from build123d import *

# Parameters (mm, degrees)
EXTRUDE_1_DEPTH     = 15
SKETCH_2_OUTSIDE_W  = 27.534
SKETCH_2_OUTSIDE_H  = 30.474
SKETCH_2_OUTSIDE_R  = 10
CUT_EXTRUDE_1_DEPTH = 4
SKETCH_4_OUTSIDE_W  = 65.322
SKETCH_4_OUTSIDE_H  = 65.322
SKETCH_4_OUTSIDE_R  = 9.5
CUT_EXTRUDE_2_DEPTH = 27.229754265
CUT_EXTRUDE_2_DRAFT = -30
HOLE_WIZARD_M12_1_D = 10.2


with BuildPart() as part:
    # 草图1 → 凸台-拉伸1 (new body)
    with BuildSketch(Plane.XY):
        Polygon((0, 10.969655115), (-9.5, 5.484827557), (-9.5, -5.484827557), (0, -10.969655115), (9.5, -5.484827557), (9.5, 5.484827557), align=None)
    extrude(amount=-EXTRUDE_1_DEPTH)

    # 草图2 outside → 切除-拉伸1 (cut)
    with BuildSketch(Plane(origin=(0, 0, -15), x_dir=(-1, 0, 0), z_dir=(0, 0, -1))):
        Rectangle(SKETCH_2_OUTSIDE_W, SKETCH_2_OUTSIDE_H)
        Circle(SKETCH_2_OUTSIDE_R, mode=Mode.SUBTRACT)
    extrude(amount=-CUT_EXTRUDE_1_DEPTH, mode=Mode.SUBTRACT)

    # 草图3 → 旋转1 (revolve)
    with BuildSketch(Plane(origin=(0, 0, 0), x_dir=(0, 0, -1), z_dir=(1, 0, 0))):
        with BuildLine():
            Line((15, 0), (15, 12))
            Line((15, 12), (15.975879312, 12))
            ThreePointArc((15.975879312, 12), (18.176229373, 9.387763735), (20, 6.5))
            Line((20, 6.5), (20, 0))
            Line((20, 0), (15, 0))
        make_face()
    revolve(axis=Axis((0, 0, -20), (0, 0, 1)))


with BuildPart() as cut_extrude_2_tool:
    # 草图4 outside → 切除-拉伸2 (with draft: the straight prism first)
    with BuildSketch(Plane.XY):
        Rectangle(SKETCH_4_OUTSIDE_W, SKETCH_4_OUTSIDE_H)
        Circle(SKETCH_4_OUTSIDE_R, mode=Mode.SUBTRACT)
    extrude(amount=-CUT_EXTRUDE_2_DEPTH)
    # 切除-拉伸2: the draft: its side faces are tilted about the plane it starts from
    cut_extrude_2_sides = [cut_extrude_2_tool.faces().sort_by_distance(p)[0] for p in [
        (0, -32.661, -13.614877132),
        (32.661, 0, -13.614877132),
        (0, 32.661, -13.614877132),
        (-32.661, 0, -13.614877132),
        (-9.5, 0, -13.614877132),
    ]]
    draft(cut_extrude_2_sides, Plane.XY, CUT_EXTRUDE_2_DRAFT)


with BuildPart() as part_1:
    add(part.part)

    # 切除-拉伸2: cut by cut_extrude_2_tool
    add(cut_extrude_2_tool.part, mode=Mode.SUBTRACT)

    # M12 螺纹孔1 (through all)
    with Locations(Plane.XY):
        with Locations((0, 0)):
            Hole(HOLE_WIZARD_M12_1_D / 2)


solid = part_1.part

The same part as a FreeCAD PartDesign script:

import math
import FreeCAD as App
import Part
import Sketcher

V = App.Vector
Q = App.Units.Quantity


def faces_at(feature, points):
    """Names of the faces that lie closest to the given points."""
    faces = feature.Shape.Faces
    near = lambda p: min(range(len(faces)), key=lambda i: faces[i].distToShape(Part.Vertex(*p))[0])
    return sorted({f"Face{near(p) + 1}" for p in points})


def add_polygon(sketch, points):
    """Adds a closed chain of lines whose ends are joined by coincident constraints."""
    first, n = sketch.GeometryCount, len(points)
    for a, b in zip(points, points[1:] + points[:1]):
        sketch.addGeometry(Part.LineSegment(App.Vector(*a, 0), App.Vector(*b, 0)), False)
    for i in range(n):
        sketch.addConstraint(Sketcher.Constraint("Coincident", first + i, 2, first + (i + 1) % n, 1))

doc = App.newDocument("Part")
body = doc.addObject("PartDesign::Body", "Body")

# Sketch on XY plane
sketch1 = doc.addObject("Sketcher::SketchObject", "Sketch")
body.addObject(sketch1)
sketch1.AttachmentSupport = (doc.XY_Plane, [""])
sketch1.MapMode = "FlatFace"
add_polygon(sketch1, [(0, 10.969655), (-9.5, 5.484828), (-9.5, -5.484828), (0, -10.969655), (9.5, -5.484828), (9.5, 5.484828)])  # lines 0-5
sketch1.addConstraint(Sketcher.Constraint("Vertical", 1))
sketch1.addConstraint(Sketcher.Constraint("Vertical", 4))
sketch1.addConstraint(Sketcher.Constraint("Symmetric", 0, 2, 3, 2, -1, 1))
sketch1.addConstraint(Sketcher.Constraint("Symmetric", 2, 2, 5, 2, -1, 1))
sketch1.addConstraint(Sketcher.Constraint("PointOnObject", 2, 2, -2))
sketch1.addConstraint(Sketcher.Constraint("Parallel", 2, 5))
sketch1.addConstraint(Sketcher.Constraint("Horizontal", 1, 2, 3, 2))
sketch1.addConstraint(Sketcher.Constraint("Angle", 0, Q("-150 deg")))
sketch1.addConstraint(Sketcher.Constraint("DistanceX", 1, 2, 3, 2, Q("19 mm")))
sketch1.addConstraint(Sketcher.Constraint("DistanceY", 1, 2, 1, 1, Q("10.969655 mm")))
pad1 = doc.addObject("PartDesign::Pad", "Pad")
body.addObject(pad1)
pad1.Profile = sketch1
pad1.Length = 15
pad1.Reversed = True

# Sketch on XY plane
sketch2 = doc.addObject("Sketcher::SketchObject", "Sketch001")
body.addObject(sketch2)
sketch2.AttachmentSupport = (doc.XY_Plane, [""])
sketch2.MapMode = "FlatFace"
sketch2.AttachmentOffset = App.Placement(V(0, 0, -15), App.Rotation())
add_polygon(sketch2, [(13.767, 15.237), (13.767, -15.237), (-13.767, -15.237), (-13.767, 15.237)])  # lines 0-3
sketch2.addGeometry(Part.Circle(V(0, 0, 0), V(0, 0, 1), 10), False)  # 4
sketch2.addConstraint(Sketcher.Constraint("Vertical", 0))
sketch2.addConstraint(Sketcher.Constraint("Horizontal", 1))
sketch2.addConstraint(Sketcher.Constraint("Vertical", 2))
sketch2.addConstraint(Sketcher.Constraint("Horizontal", 3))
sketch2.addConstraint(Sketcher.Constraint("Coincident", 4, 3, -1, 1))
sketch2.addConstraint(Sketcher.Constraint("Symmetric", 0, 2, 2, 2, -1, 1))
sketch2.addConstraint(Sketcher.Constraint("Diameter", 4, Q("20 mm")))
sketch2.addConstraint(Sketcher.Constraint("DistanceX", 1, 2, 1, 1, Q("27.534 mm")))
sketch2.addConstraint(Sketcher.Constraint("DistanceY", 0, 2, 0, 1, Q("30.474 mm")))
pocket1 = doc.addObject("PartDesign::Pocket", "Pocket")
body.addObject(pocket1)
pocket1.Profile = sketch2
pocket1.Length = 4
pocket1.Reversed = True

# Sketch on YZ plane
sketch3 = doc.addObject("Sketcher::SketchObject", "Sketch002")
body.addObject(sketch3)
sketch3.AttachmentSupport = (doc.YZ_Plane, [""])
sketch3.MapMode = "FlatFace"
sketch3.addGeometry(Part.LineSegment(V(12, -15, 0), V(0, -15, 0)), False)
sketch3.addGeometry(Part.LineSegment(V(0, -15, 0), V(0, -20, 0)), False)
sketch3.addGeometry(Part.LineSegment(V(0, -20, 0), V(6.5, -20, 0)), False)
sketch3.addGeometry(Part.ArcOfCircle(Part.Circle(V(-5.374342, 2, 0), V(0, 0, 1), 25), math.radians(-61.642363), math.radians(-45.97488)), False)
sketch3.addGeometry(Part.LineSegment(V(12, -15.975879, 0), V(12, -15, 0)), False)
sketch3.addConstraint(Sketcher.Constraint("Coincident", 0, 2, 1, 1))
sketch3.addConstraint(Sketcher.Constraint("Coincident", 1, 2, 2, 1))
sketch3.addConstraint(Sketcher.Constraint("Coincident", 2, 2, 3, 1))
sketch3.addConstraint(Sketcher.Constraint("Coincident", 3, 2, 4, 1))
sketch3.addConstraint(Sketcher.Constraint("Coincident", 4, 2, 0, 1))
sketch3.addConstraint(Sketcher.Constraint("Horizontal", 0))
sketch3.addConstraint(Sketcher.Constraint("Vertical", 1))
sketch3.addConstraint(Sketcher.Constraint("Horizontal", 2))
sketch3.addConstraint(Sketcher.Constraint("Vertical", 4))
sketch3.addConstraint(Sketcher.Constraint("PointOnObject", 0, 2, -2))
sketch3.addConstraint(Sketcher.Constraint("Radius", 3, Q("25 mm")))
sketch3.addConstraint(Sketcher.Constraint("DistanceX", 0, 2, 0, 1, Q("12 mm")))
sketch3.addConstraint(Sketcher.Constraint("DistanceY", 1, 2, 1, 1, Q("5 mm")))
sketch3.addConstraint(Sketcher.Constraint("DistanceX", 2, 1, 2, 2, Q("6.5 mm")))
sketch3.addConstraint(Sketcher.Constraint("DistanceY", -1, 1, 3, 3, Q("2 mm")))
sketch3.addConstraint(Sketcher.Constraint("DistanceY", 0, 2, -1, 1, Q("15 mm")))
revolution = doc.addObject("PartDesign::Revolution", "Revolution")
body.addObject(revolution)
revolution.Profile = sketch3
revolution.ReferenceAxis = (sketch3, ["V_Axis"])
revolution.Angle = 360
body2 = doc.addObject("PartDesign::Body", "Body001")

# Sketch on XY plane
sketch4 = doc.addObject("Sketcher::SketchObject", "Sketch003")
body2.addObject(sketch4)
sketch4.AttachmentSupport = (doc.getObject("XY_Plane001"), [""])
sketch4.MapMode = "FlatFace"
add_polygon(sketch4, [(-32.661, 32.661), (-32.661, -32.661), (32.661, -32.661), (32.661, 32.661)])  # lines 0-3
sketch4.addGeometry(Part.Circle(V(0, 0, 0), V(0, 0, 1), 9.5), False)  # 4
sketch4.addConstraint(Sketcher.Constraint("Vertical", 0))
sketch4.addConstraint(Sketcher.Constraint("Horizontal", 1))
sketch4.addConstraint(Sketcher.Constraint("Vertical", 2))
sketch4.addConstraint(Sketcher.Constraint("Horizontal", 3))
sketch4.addConstraint(Sketcher.Constraint("Coincident", 4, 3, -1, 1))
sketch4.addConstraint(Sketcher.Constraint("Symmetric", 0, 2, 2, 2, -1, 1))
sketch4.addConstraint(Sketcher.Constraint("Equal", 3, 0))
sketch4.addConstraint(Sketcher.Constraint("Diameter", 4, Q("19 mm")))
sketch4.addConstraint(Sketcher.Constraint("DistanceX", 1, 1, 1, 2, Q("65.322 mm")))
pad2 = doc.addObject("PartDesign::Pad", "Pad001")
body2.addObject(pad2)
pad2.Profile = sketch4
pad2.Length = 27.229754
pad2.Reversed = True
doc.recompute()

draft = doc.addObject("PartDesign::Draft", "Draft")
body2.addObject(draft)
draft.Base = (pad2, faces_at(pad2, [
    (0, -32.661, -13.615),
    (32.661, 0, -13.615),
    (0, 32.661, -13.615),
    (-32.661, 0, -13.615),
    (-9.5, 0, -13.615),
]))
draft.NeutralPlane = (doc.getObject("XY_Plane001"), [""])
draft.Angle = 30
draft.Reversed = True
doc.recompute()

boolean = doc.addObject("PartDesign::Boolean", "Boolean")
body.addObject(boolean)
boolean.Type = "Cut"
boolean.addObjects([body2])

# Sketch on XY plane
sketch5 = doc.addObject("Sketcher::SketchObject", "Sketch004")
body.addObject(sketch5)
sketch5.AttachmentSupport = (doc.XY_Plane, [""])
sketch5.MapMode = "FlatFace"
sketch5.addGeometry(Part.Circle(V(0, 0, 0), V(0, 0, 1), 5.1), False)
sketch5.addConstraint(Sketcher.Constraint("Coincident", 0, 3, -1, 1))
sketch5.addConstraint(Sketcher.Constraint("Diameter", 0, Q("10.2 mm")))
doc.recompute()
hole = doc.addObject("PartDesign::Hole", "Hole")
body.addObject(hole)
hole.Profile = sketch5
hole.ThreadType = "None"
hole.Diameter = 10.2
hole.DepthType = "ThroughAll"

doc.recompute()
